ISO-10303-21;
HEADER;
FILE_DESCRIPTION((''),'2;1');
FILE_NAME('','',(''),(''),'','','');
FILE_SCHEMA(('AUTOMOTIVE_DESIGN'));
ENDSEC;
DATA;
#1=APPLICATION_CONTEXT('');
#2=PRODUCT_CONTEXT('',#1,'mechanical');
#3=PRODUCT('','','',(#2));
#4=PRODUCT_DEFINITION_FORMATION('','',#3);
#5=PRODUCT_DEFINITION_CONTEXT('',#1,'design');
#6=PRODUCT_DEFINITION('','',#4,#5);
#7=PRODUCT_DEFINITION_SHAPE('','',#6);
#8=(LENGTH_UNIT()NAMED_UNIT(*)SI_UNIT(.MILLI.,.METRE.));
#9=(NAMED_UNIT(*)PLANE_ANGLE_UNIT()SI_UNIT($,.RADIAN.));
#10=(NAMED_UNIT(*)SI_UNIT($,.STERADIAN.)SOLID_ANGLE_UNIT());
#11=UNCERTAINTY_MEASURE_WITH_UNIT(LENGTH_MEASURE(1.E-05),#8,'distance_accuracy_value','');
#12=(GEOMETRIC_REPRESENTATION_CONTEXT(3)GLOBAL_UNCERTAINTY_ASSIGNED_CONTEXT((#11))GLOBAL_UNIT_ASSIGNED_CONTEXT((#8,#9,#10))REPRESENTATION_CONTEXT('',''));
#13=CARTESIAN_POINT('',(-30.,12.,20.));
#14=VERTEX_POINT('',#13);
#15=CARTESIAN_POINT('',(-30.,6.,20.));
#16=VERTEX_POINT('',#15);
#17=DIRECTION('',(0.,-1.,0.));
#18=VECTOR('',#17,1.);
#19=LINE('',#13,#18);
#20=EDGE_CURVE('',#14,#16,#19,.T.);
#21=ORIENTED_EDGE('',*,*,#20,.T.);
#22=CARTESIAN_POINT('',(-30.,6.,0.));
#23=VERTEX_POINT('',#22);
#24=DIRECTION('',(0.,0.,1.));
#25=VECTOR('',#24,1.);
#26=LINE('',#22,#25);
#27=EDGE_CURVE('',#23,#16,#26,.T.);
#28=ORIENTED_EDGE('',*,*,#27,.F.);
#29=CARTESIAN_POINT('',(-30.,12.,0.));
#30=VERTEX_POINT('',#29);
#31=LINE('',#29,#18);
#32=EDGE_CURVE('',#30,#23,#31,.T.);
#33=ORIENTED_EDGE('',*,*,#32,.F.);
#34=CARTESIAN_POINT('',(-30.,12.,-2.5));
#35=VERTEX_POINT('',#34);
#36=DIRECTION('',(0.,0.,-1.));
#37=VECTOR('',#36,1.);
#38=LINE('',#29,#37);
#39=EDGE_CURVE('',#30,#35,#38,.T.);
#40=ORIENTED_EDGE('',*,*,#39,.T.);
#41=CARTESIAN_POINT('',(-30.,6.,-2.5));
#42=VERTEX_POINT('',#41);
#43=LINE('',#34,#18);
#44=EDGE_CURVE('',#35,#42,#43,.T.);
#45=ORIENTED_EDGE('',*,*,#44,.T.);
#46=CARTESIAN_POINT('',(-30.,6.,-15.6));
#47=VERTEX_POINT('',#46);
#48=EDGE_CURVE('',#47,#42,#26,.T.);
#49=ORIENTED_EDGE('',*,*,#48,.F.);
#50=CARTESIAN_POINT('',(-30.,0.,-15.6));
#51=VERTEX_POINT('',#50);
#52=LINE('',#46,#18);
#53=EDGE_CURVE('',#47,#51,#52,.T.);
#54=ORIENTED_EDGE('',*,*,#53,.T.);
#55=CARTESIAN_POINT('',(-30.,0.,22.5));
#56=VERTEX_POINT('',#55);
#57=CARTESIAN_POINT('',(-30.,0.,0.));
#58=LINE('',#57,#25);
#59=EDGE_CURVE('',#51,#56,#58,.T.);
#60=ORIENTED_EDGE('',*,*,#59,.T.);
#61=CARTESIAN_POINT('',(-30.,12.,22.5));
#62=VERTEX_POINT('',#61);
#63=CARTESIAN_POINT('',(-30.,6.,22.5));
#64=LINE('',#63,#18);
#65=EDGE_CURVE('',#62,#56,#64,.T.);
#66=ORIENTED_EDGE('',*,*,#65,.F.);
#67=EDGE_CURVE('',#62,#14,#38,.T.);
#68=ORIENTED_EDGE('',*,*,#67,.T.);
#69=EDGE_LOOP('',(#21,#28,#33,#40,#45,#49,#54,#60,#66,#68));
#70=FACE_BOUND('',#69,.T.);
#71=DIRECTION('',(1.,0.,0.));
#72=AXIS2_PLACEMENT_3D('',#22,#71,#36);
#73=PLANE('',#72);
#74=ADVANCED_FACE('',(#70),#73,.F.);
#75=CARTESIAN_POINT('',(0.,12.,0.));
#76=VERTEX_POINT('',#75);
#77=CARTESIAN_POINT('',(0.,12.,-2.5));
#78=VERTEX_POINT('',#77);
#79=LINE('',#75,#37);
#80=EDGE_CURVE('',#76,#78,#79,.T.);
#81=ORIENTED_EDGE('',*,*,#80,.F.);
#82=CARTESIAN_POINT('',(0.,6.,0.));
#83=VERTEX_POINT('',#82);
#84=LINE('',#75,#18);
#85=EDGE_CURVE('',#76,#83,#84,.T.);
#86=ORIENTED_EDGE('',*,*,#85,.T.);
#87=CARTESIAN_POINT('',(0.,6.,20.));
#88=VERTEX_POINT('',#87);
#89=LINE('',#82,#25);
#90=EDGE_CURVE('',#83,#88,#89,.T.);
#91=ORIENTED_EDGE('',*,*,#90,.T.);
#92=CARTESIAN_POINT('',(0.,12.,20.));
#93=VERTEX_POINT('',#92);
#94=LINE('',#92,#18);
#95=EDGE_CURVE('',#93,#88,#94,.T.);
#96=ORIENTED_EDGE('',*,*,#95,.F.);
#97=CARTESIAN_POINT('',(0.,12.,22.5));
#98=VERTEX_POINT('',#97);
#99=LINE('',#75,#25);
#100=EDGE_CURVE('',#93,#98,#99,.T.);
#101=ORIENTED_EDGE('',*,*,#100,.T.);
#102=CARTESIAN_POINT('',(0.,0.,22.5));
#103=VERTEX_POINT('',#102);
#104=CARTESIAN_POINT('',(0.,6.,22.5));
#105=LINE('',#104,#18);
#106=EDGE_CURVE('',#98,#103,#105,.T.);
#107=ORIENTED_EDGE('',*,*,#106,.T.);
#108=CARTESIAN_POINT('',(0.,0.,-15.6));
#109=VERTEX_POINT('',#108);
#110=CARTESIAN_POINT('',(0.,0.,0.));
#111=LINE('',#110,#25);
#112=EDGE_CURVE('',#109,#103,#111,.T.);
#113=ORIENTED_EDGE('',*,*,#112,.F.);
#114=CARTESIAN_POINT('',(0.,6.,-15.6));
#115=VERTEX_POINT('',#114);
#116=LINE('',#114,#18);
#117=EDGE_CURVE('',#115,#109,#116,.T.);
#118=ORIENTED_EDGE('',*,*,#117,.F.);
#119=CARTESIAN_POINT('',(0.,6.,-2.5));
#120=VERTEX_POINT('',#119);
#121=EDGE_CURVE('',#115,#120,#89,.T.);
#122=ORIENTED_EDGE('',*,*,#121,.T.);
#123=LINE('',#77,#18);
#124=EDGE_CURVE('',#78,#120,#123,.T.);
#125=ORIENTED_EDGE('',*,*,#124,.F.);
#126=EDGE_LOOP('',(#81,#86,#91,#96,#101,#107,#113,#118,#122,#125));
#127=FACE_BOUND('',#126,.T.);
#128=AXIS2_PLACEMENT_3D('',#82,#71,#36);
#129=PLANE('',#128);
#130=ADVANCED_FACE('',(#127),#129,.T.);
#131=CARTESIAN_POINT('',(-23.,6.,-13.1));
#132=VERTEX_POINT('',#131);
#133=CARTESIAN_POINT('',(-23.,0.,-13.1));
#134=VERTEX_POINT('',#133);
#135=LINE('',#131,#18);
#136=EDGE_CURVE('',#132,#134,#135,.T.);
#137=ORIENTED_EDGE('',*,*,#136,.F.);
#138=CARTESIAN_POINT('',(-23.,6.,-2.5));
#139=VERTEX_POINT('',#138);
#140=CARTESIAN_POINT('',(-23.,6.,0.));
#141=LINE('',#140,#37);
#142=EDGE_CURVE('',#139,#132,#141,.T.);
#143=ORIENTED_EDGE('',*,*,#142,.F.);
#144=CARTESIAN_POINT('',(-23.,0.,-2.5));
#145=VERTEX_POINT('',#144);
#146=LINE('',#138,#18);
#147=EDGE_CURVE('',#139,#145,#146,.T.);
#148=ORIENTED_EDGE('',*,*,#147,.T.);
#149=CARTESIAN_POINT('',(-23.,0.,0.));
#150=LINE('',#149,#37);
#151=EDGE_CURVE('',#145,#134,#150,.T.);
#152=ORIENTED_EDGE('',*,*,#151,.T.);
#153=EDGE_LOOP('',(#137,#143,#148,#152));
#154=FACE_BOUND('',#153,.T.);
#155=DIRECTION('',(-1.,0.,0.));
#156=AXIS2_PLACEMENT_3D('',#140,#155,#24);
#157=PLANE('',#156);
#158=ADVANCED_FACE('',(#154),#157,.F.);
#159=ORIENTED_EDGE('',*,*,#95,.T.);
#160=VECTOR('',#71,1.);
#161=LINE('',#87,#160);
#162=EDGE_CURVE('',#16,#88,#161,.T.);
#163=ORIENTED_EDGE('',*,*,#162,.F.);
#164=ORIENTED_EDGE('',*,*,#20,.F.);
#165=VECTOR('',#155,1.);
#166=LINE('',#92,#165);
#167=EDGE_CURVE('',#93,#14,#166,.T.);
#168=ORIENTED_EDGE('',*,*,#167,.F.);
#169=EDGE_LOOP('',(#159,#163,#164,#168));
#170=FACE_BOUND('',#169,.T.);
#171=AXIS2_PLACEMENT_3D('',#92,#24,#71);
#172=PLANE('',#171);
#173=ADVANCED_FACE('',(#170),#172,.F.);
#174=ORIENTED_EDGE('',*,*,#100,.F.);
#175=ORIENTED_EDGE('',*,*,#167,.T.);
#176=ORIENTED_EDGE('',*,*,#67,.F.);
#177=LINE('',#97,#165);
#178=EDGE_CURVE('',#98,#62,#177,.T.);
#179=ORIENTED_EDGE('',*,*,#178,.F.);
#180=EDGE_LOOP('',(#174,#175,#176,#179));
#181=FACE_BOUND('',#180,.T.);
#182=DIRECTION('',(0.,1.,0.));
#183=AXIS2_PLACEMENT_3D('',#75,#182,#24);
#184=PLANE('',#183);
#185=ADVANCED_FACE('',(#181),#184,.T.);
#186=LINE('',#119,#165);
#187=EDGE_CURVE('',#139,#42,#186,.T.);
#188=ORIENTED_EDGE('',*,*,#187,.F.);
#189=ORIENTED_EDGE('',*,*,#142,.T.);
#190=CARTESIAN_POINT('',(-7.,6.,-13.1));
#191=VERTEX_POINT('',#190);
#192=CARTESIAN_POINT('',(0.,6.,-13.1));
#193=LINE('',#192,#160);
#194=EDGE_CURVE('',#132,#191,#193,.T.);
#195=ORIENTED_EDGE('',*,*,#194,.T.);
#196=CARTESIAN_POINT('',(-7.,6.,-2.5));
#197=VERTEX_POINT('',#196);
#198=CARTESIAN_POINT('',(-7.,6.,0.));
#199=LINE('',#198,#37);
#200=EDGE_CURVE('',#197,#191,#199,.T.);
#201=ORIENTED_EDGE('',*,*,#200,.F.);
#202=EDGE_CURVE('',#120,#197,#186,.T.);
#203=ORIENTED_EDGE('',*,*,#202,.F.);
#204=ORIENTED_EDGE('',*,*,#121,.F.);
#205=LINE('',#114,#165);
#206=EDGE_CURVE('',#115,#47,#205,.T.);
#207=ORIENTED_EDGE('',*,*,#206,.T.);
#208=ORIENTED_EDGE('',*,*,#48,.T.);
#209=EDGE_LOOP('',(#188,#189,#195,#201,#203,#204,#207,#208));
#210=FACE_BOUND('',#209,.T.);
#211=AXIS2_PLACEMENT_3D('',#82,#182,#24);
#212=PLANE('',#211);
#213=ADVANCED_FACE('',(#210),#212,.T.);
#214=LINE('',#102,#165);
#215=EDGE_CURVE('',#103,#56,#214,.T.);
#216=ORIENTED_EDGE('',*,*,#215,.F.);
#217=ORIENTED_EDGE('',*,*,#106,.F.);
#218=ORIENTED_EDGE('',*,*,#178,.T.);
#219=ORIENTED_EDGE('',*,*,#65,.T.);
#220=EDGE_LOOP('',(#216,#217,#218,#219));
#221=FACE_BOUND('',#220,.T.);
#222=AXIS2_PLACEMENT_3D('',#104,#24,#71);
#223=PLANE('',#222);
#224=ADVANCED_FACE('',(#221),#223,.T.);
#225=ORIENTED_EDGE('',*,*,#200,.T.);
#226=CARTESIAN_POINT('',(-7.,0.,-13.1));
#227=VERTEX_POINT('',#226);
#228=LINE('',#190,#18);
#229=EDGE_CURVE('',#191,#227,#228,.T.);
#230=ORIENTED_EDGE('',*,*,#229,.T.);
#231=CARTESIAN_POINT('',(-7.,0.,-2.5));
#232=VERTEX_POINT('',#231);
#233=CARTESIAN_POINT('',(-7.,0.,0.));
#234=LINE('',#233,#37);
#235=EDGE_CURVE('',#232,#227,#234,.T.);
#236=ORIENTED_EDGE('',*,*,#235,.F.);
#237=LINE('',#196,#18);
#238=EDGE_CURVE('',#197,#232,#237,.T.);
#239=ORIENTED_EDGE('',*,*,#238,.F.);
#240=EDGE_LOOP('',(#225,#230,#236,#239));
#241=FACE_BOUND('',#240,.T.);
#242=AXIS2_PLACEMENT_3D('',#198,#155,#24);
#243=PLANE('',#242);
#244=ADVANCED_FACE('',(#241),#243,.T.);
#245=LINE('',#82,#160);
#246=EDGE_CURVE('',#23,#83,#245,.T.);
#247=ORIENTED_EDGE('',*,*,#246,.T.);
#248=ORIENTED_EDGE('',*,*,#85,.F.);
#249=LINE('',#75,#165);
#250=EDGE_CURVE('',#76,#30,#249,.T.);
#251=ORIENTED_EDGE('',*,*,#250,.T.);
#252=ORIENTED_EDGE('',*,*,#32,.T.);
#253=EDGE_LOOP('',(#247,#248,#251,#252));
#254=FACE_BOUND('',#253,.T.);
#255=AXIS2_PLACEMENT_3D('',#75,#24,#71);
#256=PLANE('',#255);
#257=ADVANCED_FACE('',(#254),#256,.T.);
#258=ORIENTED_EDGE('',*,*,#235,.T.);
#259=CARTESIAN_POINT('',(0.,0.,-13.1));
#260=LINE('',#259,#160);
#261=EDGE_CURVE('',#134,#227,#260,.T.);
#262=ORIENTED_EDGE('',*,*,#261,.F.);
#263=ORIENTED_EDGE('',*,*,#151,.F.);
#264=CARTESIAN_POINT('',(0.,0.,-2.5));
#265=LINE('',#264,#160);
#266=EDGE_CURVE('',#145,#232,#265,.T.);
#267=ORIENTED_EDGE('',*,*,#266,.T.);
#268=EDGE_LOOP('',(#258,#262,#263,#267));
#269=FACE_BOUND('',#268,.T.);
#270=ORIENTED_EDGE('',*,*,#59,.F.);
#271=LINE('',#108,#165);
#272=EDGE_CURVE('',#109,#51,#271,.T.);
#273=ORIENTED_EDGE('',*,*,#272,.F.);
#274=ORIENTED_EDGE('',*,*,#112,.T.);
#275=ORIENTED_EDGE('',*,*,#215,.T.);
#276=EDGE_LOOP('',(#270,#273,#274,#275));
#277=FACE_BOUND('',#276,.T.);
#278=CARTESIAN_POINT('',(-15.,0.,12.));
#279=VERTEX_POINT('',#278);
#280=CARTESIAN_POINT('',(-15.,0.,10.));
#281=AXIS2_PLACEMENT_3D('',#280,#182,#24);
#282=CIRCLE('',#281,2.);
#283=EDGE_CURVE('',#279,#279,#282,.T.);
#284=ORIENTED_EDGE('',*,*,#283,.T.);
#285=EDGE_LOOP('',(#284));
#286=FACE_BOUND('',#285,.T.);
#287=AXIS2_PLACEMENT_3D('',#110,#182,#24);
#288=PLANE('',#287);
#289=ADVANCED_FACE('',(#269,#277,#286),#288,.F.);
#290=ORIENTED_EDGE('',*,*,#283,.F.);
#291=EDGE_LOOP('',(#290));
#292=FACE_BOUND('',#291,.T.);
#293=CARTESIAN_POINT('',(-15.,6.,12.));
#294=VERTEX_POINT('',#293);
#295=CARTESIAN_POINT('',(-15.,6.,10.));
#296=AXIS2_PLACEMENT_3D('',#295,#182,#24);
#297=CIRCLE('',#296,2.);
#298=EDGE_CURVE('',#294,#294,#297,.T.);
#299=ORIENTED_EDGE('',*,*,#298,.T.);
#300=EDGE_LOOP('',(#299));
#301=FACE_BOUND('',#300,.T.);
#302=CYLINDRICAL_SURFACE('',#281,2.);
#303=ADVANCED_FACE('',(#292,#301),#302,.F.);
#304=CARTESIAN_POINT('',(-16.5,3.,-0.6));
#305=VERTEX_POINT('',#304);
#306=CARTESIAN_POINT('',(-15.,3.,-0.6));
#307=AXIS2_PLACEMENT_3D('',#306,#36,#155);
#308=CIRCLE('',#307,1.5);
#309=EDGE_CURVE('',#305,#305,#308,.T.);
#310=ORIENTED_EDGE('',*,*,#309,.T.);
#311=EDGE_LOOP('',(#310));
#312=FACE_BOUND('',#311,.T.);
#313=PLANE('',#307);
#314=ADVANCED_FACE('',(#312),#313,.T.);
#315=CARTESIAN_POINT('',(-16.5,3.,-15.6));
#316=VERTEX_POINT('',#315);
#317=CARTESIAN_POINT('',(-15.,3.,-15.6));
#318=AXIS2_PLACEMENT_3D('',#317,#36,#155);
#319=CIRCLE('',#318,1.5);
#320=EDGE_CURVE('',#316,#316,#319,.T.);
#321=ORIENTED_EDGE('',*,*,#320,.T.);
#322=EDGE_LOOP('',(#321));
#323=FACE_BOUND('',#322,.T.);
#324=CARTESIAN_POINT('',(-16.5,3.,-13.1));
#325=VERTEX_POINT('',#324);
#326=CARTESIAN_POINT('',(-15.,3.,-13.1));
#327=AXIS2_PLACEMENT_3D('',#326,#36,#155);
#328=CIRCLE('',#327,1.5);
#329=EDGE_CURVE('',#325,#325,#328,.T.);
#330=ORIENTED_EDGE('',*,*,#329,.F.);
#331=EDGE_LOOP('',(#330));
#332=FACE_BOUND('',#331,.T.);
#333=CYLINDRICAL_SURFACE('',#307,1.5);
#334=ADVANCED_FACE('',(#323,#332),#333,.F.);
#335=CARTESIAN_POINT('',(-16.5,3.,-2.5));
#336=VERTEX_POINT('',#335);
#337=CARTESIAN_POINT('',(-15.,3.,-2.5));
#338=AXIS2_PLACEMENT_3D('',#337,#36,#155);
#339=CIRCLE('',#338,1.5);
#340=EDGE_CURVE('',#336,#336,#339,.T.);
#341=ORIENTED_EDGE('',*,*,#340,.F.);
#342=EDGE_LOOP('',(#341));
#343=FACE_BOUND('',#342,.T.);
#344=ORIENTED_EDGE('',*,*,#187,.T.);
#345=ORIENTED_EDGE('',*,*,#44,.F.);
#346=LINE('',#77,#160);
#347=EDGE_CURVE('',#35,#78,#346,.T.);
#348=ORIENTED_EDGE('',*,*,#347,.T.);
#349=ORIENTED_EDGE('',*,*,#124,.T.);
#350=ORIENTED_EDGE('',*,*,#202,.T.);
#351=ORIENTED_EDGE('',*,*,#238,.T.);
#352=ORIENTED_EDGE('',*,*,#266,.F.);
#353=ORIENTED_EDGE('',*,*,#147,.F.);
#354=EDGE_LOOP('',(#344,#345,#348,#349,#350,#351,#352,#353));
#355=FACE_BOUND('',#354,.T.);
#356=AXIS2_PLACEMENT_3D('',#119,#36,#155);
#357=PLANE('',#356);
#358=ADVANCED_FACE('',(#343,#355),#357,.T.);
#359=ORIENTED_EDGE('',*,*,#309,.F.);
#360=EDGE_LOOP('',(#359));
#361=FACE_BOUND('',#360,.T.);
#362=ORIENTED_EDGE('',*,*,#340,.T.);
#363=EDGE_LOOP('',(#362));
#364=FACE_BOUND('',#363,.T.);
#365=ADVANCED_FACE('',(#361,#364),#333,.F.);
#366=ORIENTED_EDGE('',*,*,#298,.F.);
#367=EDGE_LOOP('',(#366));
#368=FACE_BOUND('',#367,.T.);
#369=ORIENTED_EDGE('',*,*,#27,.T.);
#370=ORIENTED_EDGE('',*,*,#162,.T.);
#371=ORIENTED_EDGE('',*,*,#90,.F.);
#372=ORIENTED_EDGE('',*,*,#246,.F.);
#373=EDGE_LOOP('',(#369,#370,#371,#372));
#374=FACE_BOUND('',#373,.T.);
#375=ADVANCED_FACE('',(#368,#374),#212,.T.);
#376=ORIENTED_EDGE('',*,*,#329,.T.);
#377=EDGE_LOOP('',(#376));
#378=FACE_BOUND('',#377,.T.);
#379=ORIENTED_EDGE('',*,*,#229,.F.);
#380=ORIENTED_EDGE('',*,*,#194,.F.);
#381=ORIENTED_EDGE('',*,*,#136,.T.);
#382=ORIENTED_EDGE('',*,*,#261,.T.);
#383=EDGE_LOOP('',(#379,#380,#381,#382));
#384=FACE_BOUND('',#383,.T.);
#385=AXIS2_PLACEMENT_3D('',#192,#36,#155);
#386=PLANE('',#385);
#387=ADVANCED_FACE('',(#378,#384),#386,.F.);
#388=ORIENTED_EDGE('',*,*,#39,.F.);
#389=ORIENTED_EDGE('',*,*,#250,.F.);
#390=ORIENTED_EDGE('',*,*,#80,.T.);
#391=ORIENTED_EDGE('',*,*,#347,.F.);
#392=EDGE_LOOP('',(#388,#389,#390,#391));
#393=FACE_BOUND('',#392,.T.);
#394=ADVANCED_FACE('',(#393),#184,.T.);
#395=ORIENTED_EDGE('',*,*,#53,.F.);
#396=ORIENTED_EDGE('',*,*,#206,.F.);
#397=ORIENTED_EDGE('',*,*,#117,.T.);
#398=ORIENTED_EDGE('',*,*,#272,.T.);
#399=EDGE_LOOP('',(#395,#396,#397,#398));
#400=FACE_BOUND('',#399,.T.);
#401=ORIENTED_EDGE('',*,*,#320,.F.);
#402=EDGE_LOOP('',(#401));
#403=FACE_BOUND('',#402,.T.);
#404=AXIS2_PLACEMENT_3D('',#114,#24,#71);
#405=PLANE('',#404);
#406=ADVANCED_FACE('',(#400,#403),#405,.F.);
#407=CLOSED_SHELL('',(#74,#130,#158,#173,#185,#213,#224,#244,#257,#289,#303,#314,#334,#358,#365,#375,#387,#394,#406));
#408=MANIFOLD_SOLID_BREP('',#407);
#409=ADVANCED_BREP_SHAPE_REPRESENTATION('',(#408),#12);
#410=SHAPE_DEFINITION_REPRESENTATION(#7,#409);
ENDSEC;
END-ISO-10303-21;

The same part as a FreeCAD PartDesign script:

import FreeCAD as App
import Part
import Sketcher


def add_polygon(sketch, points):
    """Adds a closed chain of lines whose ends are joined by coincident constraints."""
    first, n = sketch.GeometryCount, len(points)
    for a, b in zip(points, points[1:] + points[:1]):
        sketch.addGeometry(Part.LineSegment(App.Vector(*a, 0), App.Vector(*b, 0)), False)
    for i in range(n):
        sketch.addConstraint(Sketcher.Constraint("Coincident", first + i, 2, first + (i + 1) % n, 1))

doc = App.newDocument("Part")
body = doc.addObject("PartDesign::Body", "Body")

sketch1 = body.newObject("Sketcher::SketchObject", "Sketch")
sketch1.AttachmentSupport = (doc.getObject("XZ_Plane"), [""])
sketch1.MapMode = "FlatFace"
add_polygon(sketch1, [(-30, -16), (-30, 22), (0, 22), (0, -16)])
add_polygon(sketch1, [(-7, -2), (-23, -2), (-23, -13), (-7, -13)])
sketch1.addConstraint(Sketcher.Constraint("Vertical", 0))
sketch1.addConstraint(Sketcher.Constraint("Horizontal", 1))
sketch1.addConstraint(Sketcher.Constraint("Vertical", 2))
sketch1.addConstraint(Sketcher.Constraint("Horizontal", 3))
sketch1.addConstraint(Sketcher.Constraint("Horizontal", 4))
sketch1.addConstraint(Sketcher.Constraint("Vertical", 5))
sketch1.addConstraint(Sketcher.Constraint("Horizontal", 6))
sketch1.addConstraint(Sketcher.Constraint("Vertical", 7))
sketch1.addConstraint(Sketcher.Constraint("PointOnObject", 1, 2, -2))
sketch1.addConstraint(Sketcher.Constraint("DistanceX", 1, 1, 1, 2, 30.0))
sketch1.addConstraint(Sketcher.Constraint("DistanceX", 4, 2, 4, 1, 16.0))
sketch1.addConstraint(Sketcher.Constraint("DistanceY", 0, 1, 0, 2, 38.1))
sketch1.addConstraint(Sketcher.Constraint("DistanceY", 5, 2, 5, 1, 10.6))
sketch1.addConstraint(Sketcher.Constraint("DistanceX", 4, 2, -1, 1, 23.0))
sketch1.addConstraint(Sketcher.Constraint("DistanceY", 4, 2, 0, 2, 25.0))
sketch1.addConstraint(Sketcher.Constraint("DistanceY", -1, 1, 0, 2, 22.5))
pad1 = body.newObject("PartDesign::Pad", "Pad")
pad1.Profile = sketch1
pad1.Length = 6
pad1.Reversed = True

sketch2 = body.newObject("Sketcher::SketchObject", "Sketch001")
sketch2.AttachmentSupport = (doc.getObject("XZ_Plane"), [""])
sketch2.MapMode = "FlatFace"
add_polygon(sketch2, [(0, 0), (0, -2.5), (-30, -2.5), (-30, 0)])
add_polygon(sketch2, [(-30, 20), (-30, 22.5), (0, 22.5), (0, 20)])
sketch2.addConstraint(Sketcher.Constraint("Vertical", 0))
sketch2.addConstraint(Sketcher.Constraint("Horizontal", 1))
sketch2.addConstraint(Sketcher.Constraint("Vertical", 2))
sketch2.addConstraint(Sketcher.Constraint("Horizontal", 3))
sketch2.addConstraint(Sketcher.Constraint("Vertical", 4))
sketch2.addConstraint(Sketcher.Constraint("Horizontal", 5))
sketch2.addConstraint(Sketcher.Constraint("Vertical", 6))
sketch2.addConstraint(Sketcher.Constraint("Horizontal", 7))
sketch2.addConstraint(Sketcher.Constraint("Coincident", 3, 2, -1, 1))
sketch2.addConstraint(Sketcher.Constraint("PointOnObject", 5, 2, -2))
sketch2.addConstraint(Sketcher.Constraint("Vertical", 2, 2, 4, 2))
sketch2.addConstraint(Sketcher.Constraint("Equal", 2, 4))
sketch2.addConstraint(Sketcher.Constraint("DistanceX", 1, 2, 1, 1, 30.0))
sketch2.addConstraint(Sketcher.Constraint("DistanceY", 0, 2, 0, 1, 2.5))
sketch2.addConstraint(Sketcher.Constraint("DistanceY", -1, 1, 6, 2, 20.0))
pad2 = body.newObject("PartDesign::Pad", "Pad001")
pad2.Profile = sketch2
pad2.Length = 12
pad2.Reversed = True

sketch3 = body.newObject("Sketcher::SketchObject", "Sketch002")
sketch3.AttachmentSupport = (doc.getObject("XY_Plane"), [""])
sketch3.MapMode = "FlatFace"
sketch3.AttachmentOffset = App.Placement(App.Vector(0, 0, -15.6), App.Rotation())
sketch3.addGeometry(Part.Circle(App.Vector(-15, 3, 0), App.Vector(0, 0, 1), 1.5), False)
sketch3.addConstraint(Sketcher.Constraint("Diameter", 0, 3.0))
sketch3.addConstraint(Sketcher.Constraint("DistanceX", 0, 3, -1, 1, 15.0))
sketch3.addConstraint(Sketcher.Constraint("DistanceY", -1, 1, 0, 3, 3.0))
pocket1 = body.newObject("PartDesign::Pocket", "Pocket")
pocket1.Profile = sketch3
pocket1.Length = 15
pocket1.Reversed = True

sketch4 = body.newObject("Sketcher::SketchObject", "Sketch003")
sketch4.AttachmentSupport = (doc.getObject("XZ_Plane"), [""])
sketch4.MapMode = "FlatFace"
sketch4.AttachmentOffset = App.Placement(App.Vector(0, 0, -6), App.Rotation())
sketch4.addGeometry(Part.Circle(App.Vector(-15, 10, 0), App.Vector(0, 0, 1), 2), False)
sketch4.addConstraint(Sketcher.Constraint("Diameter", 0, 4.0))
sketch4.addConstraint(Sketcher.Constraint("DistanceX", 0, 3, -1, 1, 15.0))
sketch4.addConstraint(Sketcher.Constraint("DistanceY", -1, 1, 0, 3, 10.0))
pocket2 = body.newObject("PartDesign::Pocket", "Pocket001")
pocket2.Profile = sketch4
pocket2.Type = "ThroughAll"
pocket2.Reversed = True

doc.recompute()
